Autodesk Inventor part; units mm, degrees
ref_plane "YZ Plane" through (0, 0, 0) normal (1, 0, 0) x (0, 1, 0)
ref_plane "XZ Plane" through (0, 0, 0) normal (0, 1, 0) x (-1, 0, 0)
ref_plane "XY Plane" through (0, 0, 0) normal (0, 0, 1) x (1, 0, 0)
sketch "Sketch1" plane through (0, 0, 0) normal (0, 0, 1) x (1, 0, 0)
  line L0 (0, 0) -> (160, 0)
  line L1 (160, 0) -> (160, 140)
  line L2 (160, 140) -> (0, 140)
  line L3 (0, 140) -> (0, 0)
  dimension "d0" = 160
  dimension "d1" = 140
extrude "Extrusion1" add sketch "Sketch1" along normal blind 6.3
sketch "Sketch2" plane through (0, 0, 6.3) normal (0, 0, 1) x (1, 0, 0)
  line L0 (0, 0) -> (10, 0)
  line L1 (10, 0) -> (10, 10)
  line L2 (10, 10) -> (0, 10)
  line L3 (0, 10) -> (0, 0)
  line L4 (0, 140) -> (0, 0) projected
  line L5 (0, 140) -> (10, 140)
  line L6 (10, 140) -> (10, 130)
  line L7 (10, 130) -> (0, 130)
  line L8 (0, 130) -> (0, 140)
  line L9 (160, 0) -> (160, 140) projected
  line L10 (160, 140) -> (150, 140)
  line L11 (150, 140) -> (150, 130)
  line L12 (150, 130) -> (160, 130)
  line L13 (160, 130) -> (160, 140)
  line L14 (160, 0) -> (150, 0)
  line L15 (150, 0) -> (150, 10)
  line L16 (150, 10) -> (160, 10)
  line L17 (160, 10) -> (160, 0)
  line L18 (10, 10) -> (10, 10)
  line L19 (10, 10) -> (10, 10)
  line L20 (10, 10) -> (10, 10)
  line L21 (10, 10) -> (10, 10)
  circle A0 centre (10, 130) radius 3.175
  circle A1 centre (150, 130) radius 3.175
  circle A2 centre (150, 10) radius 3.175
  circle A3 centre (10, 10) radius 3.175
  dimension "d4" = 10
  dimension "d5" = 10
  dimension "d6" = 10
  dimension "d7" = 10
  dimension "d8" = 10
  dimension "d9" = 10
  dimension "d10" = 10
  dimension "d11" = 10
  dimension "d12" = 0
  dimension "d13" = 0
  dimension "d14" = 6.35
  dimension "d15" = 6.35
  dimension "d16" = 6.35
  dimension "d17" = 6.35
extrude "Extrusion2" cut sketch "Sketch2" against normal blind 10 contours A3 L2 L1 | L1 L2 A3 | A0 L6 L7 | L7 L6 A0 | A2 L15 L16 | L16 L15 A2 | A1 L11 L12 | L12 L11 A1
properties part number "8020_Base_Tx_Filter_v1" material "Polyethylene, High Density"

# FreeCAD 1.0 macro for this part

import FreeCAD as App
import Part
import Sketcher

V = App.Vector


def add_polygon(sketch, points):
    """Adds a closed chain of lines whose ends are joined by coincident constraints."""
    first, n = sketch.GeometryCount, len(points)
    for a, b in zip(points, points[1:] + points[:1]):
        sketch.addGeometry(Part.LineSegment(App.Vector(*a, 0), App.Vector(*b, 0)), False)
    for i in range(n):
        sketch.addConstraint(Sketcher.Constraint("Coincident", first + i, 2, first + (i + 1) % n, 1))

doc = App.newDocument("Part")
body = doc.addObject("PartDesign::Body", "Body")

# Sketch on XY plane
sketch1 = body.newObject("Sketcher::SketchObject", "Sketch")
sketch1.AttachmentSupport = (doc.getObject("XY_Plane"), [""])
sketch1.MapMode = "FlatFace"
add_polygon(sketch1, [(0, 140), (0, 0), (160, 0), (160, 140)])  # lines 0-3
sketch1.addConstraint([
    Sketcher.Constraint("Vertical", 0),
    Sketcher.Constraint("Horizontal", 1),
    Sketcher.Constraint("Vertical", 2),
    Sketcher.Constraint("Horizontal", 3),
    Sketcher.Constraint("Coincident", 0, 2, -1, 1),
    Sketcher.Constraint("DistanceX", 1, 1, 1, 2, 160.0),
    Sketcher.Constraint("DistanceY", 0, 2, 0, 1, 140.0),
])
pad1 = body.newObject("PartDesign::Pad", "Pad")
pad1.Profile = sketch1
pad1.Length = 6.3

# Sketch on XY plane
sketch2 = body.newObject("Sketcher::SketchObject", "Sketch001")
sketch2.AttachmentSupport = (doc.getObject("XY_Plane"), [""])
sketch2.MapMode = "FlatFace"
sketch2.AttachmentOffset = App.Placement(V(0, 0, 6.3), App.Rotation())
sketch2.addGeometry([
    Part.Circle(V(10, 10, 0), V(0, 0, 1), 3.2),
    Part.Circle(V(10, 130, 0), V(0, 0, 1), 3.2),
    Part.Circle(V(150, 10, 0), V(0, 0, 1), 3.2),
    Part.Circle(V(150, 130, 0), V(0, 0, 1), 3.2),
], False)
sketch2.addConstraint([
    Sketcher.Constraint("Equal", 0, 1),
    Sketcher.Constraint("Equal", 1, 2),
    Sketcher.Constraint("Equal", 2, 3),
    Sketcher.Constraint("Horizontal", 0, 3, 2, 3),
    Sketcher.Constraint("Horizontal", 1, 3, 3, 3),
    Sketcher.Constraint("Vertical", 0, 3, 1, 3),
    Sketcher.Constraint("Vertical", 2, 3, 3, 3),
    Sketcher.Constraint("Diameter", 0, 6.35),
    Sketcher.Constraint("DistanceX", -1, 1, 0, 3, 10.0),
    Sketcher.Constraint("DistanceY", -1, 1, 0, 3, 10.0),
    Sketcher.Constraint("DistanceY", -1, 1, 1, 3, 130.0),
    Sketcher.Constraint("DistanceX", -1, 1, 2, 3, 150.0),
])
pocket1 = body.newObject("PartDesign::Pocket", "Pocket")
pocket1.Profile = sketch2
pocket1.Length = 10

doc.recompute()
